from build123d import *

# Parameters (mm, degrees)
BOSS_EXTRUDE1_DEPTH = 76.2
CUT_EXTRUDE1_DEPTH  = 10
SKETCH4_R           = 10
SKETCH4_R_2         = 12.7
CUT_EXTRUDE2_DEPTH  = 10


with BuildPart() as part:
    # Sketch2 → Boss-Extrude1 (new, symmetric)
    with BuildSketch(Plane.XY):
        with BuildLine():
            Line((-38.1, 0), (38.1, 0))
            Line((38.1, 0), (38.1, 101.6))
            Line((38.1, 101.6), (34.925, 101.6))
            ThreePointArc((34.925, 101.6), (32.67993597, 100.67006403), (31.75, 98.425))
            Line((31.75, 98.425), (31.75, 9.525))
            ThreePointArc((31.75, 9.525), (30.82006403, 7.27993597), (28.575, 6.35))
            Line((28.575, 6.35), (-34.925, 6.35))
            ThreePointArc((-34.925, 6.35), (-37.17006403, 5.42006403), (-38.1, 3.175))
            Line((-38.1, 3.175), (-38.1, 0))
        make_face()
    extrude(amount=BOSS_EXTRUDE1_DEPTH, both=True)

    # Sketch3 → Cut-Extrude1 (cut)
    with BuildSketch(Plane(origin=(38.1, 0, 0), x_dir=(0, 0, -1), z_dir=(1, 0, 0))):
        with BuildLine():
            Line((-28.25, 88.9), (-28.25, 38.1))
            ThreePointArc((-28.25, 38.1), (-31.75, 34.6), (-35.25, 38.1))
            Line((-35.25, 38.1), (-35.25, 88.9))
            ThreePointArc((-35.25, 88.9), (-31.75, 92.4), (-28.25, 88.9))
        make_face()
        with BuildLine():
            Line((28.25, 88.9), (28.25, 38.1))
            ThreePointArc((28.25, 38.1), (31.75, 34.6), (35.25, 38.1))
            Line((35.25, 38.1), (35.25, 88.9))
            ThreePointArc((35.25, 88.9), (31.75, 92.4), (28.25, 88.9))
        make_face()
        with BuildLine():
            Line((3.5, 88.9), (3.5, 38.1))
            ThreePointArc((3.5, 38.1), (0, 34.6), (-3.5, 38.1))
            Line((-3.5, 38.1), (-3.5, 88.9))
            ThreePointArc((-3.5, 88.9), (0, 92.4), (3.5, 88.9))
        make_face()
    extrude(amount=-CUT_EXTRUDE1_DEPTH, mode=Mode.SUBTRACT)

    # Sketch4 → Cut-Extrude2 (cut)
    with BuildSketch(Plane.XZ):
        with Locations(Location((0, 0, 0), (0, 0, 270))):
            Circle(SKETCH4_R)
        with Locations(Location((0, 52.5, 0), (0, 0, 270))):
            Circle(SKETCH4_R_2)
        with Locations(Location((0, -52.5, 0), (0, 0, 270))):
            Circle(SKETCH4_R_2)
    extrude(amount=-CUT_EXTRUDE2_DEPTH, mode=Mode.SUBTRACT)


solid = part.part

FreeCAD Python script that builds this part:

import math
import FreeCAD as App
import Part
import Sketcher

V = App.Vector
Q = App.Units.Quantity

doc = App.newDocument("Part")
body = doc.addObject("PartDesign::Body", "Body")

# Sketch on XY plane
sketch1 = doc.addObject("Sketcher::SketchObject", "Sketch")
body.addObject(sketch1)
sketch1.AttachmentSupport = (doc.XY_Plane, [""])
sketch1.MapMode = "FlatFace"
sketch1.addGeometry([
    Part.LineSegment(V(-38.1, 0, 0), V(38.1, 0, 0)),  # 0
    Part.LineSegment(V(38.1, 0, 0), V(38.1, 101.6, 0)),  # 1
    Part.LineSegment(V(38.1, 101.6, 0), V(34.925, 101.6, 0)),  # 2
    Part.ArcOfCircle(Part.Circle(V(34.925, 98.425, 0), V(0, 0, 1), 3.175), math.radians(90), math.radians(180)),  # 3
    Part.LineSegment(V(31.75, 98.425, 0), V(31.75, 9.525, 0)),  # 4
    Part.ArcOfCircle(Part.Circle(V(28.575, 9.525, 0), V(0, 0, 1), 3.175), math.radians(-90), math.radians(0)),  # 5
    Part.LineSegment(V(28.575, 6.35, 0), V(-34.925, 6.35, 0)),  # 6
    Part.ArcOfCircle(Part.Circle(V(-34.925, 3.175, 0), V(0, 0, 1), 3.175), math.radians(90), math.radians(180)),  # 7
    Part.LineSegment(V(-38.1, 3.175, 0), V(-38.1, 0, 0)),  # 8
], False)
sketch1.addConstraint([
    Sketcher.Constraint("Coincident", 0, 2, 1, 1),
    Sketcher.Constraint("Coincident", 1, 2, 2, 1),
    Sketcher.Constraint("Tangent", 2, 2, 3, 1),
    Sketcher.Constraint("Tangent", 3, 2, 4, 1),
    Sketcher.Constraint("Tangent", 4, 2, 5, 2),
    Sketcher.Constraint("Tangent", 5, 1, 6, 1),
    Sketcher.Constraint("Tangent", 6, 2, 7, 1),
    Sketcher.Constraint("Tangent", 7, 2, 8, 1),
    Sketcher.Constraint("Coincident", 8, 2, 0, 1),
    Sketcher.Constraint("Horizontal", 0),
    Sketcher.Constraint("Vertical", 1),
    Sketcher.Constraint("Horizontal", 2),
    Sketcher.Constraint("Vertical", 4),
    Sketcher.Constraint("Horizontal", 6),
    Sketcher.Constraint("Vertical", 8),
    Sketcher.Constraint("Equal", 3, 5),
    Sketcher.Constraint("Equal", 5, 7),
    Sketcher.Constraint("Symmetric", 0, 2, 8, 2, -1, 1),
    Sketcher.Constraint("Equal", 2, 8),
    Sketcher.Constraint("DistanceX", 0, 1, 0, 2, Q("3 in")),
    Sketcher.Constraint("DistanceY", 1, 1, 1, 2, Q("4 in")),
    Sketcher.Constraint("DistanceX", 6, 2, 6, 1, Q("2.5 in")),
    Sketcher.Constraint("Radius", 3, Q("0.125 in")),
])
pad1 = doc.addObject("PartDesign::Pad", "Pad")
body.addObject(pad1)
pad1.Profile = sketch1
pad1.Length = Q("6 in")
pad1.Midplane = True

# Sketch on YZ plane
sketch2 = doc.addObject("Sketcher::SketchObject", "Sketch001")
body.addObject(sketch2)
sketch2.AttachmentSupport = (doc.YZ_Plane, [""])
sketch2.MapMode = "FlatFace"
sketch2.AttachmentOffset = App.Placement(V(0, 0, 1.5 * 25.4), App.Rotation())
sketch2.addGeometry([
    Part.LineSegment(V(38.1, 28.25, 0), V(88.9, 28.25, 0)),  # 0
    Part.ArcOfCircle(Part.Circle(V(88.9, 31.75, 0), V(0, 0, 1), 3.5), math.radians(-90), math.radians(90)),  # 1
    Part.LineSegment(V(88.9, 35.25, 0), V(38.1, 35.25, 0)),  # 2
    Part.ArcOfCircle(Part.Circle(V(38.1, 31.75, 0), V(0, 0, 1), 3.5), math.radians(90), math.radians(270)),  # 3
    Part.LineSegment(V(88.9, -28.25, 0), V(38.1, -28.25, 0)),  # 4
    Part.ArcOfCircle(Part.Circle(V(38.1, -31.75, 0), V(0, 0, 1), 3.5), math.radians(90), math.radians(270)),  # 5
    Part.LineSegment(V(38.1, -35.25, 0), V(88.9, -35.25, 0)),  # 6
    Part.ArcOfCircle(Part.Circle(V(88.9, -31.75, 0), V(0, 0, 1), 3.5), math.radians(-90), math.radians(90)),  # 7
    Part.LineSegment(V(38.1, -3.5, 0), V(88.9, -3.5, 0)),  # 8
    Part.ArcOfCircle(Part.Circle(V(88.9, 0, 0), V(0, 0, 1), 3.5), math.radians(-90), math.radians(90)),  # 9
    Part.LineSegment(V(88.9, 3.5, 0), V(38.1, 3.5, 0)),  # 10
    Part.ArcOfCircle(Part.Circle(V(38.1, 0, 0), V(0, 0, 1), 3.5), math.radians(90), math.radians(270)),  # 11
], False)
sketch2.addConstraint([
    Sketcher.Constraint("Tangent", 0, 2, 1, 1),
    Sketcher.Constraint("Tangent", 1, 2, 2, 1),
    Sketcher.Constraint("Tangent", 2, 2, 3, 1),
    Sketcher.Constraint("Tangent", 3, 2, 0, 1),
    Sketcher.Constraint("Tangent", 4, 2, 5, 1),
    Sketcher.Constraint("Tangent", 5, 2, 6, 1),
    Sketcher.Constraint("Tangent", 6, 2, 7, 1),
    Sketcher.Constraint("Tangent", 7, 2, 4, 1),
    Sketcher.Constraint("Tangent", 8, 2, 9, 1),
    Sketcher.Constraint("Tangent", 9, 2, 10, 1),
    Sketcher.Constraint("Tangent", 10, 2, 11, 1),
    Sketcher.Constraint("Tangent", 11, 2, 8, 1),
    Sketcher.Constraint("Horizontal", 0),
    Sketcher.Constraint("Horizontal", 2),
    Sketcher.Constraint("Horizontal", 4),
    Sketcher.Constraint("Horizontal", 6),
    Sketcher.Constraint("Horizontal", 8),
    Sketcher.Constraint("Horizontal", 10),
    Sketcher.Constraint("Equal", 3, 5),
    Sketcher.Constraint("Equal", 7, 9),
    Sketcher.Constraint("Symmetric", 3, 3, 5, 3, -1),
    Sketcher.Constraint("PointOnObject", 9, 3, -1),
    Sketcher.Constraint("Vertical", 1, 3, 7, 3),
    Sketcher.Constraint("Vertical", 7, 3, 9, 3),
    Sketcher.Constraint("Vertical", 5, 3, 11, 3),
    Sketcher.Constraint("DistanceX", 0, 1, 0, 2, Q("2 in")),
    Sketcher.Constraint("DistanceX", -1, 1, 1, 3, Q("3.5 in")),
    Sketcher.Constraint("DistanceY", 5, 3, 3, 3, Q("2.5 in")),
    Sketcher.Constraint("Radius", 1, Q("3.5 mm")),
])
pocket1 = doc.addObject("PartDesign::Pocket", "Pocket")
body.addObject(pocket1)
pocket1.Profile = sketch2
pocket1.Length = 10

# Sketch on XZ plane
sketch3 = doc.addObject("Sketcher::SketchObject", "Sketch002")
body.addObject(sketch3)
sketch3.AttachmentSupport = (doc.XZ_Plane, [""])
sketch3.MapMode = "FlatFace"
sketch3.addGeometry([
    Part.Circle(V(0, 0, 0), V(0, 0, 1), 10),
    Part.Circle(V(0, 52.5, 0), V(0, 0, 1), 12.7),
    Part.Circle(V(0, -52.5, 0), V(0, 0, 1), 12.7),
], False)
sketch3.addConstraint([
    Sketcher.Constraint("Coincident", 0, 3, -1, 1),
    Sketcher.Constraint("Equal", 1, 2),
    Sketcher.Constraint("Symmetric", 1, 3, 2, 3, -1, 1),
    Sketcher.Constraint("PointOnObject", 1, 3, -2),
    Sketcher.Constraint("Diameter", 1, Q("1 in")),
    Sketcher.Constraint("Diameter", 0, Q("20 mm")),
    Sketcher.Constraint("DistanceY", -1, 1, 1, 3, Q("52.5 mm")),
])
pocket2 = doc.addObject("PartDesign::Pocket", "Pocket001")
body.addObject(pocket2)
pocket2.Profile = sketch3
pocket2.Length = 10

doc.recompute()
